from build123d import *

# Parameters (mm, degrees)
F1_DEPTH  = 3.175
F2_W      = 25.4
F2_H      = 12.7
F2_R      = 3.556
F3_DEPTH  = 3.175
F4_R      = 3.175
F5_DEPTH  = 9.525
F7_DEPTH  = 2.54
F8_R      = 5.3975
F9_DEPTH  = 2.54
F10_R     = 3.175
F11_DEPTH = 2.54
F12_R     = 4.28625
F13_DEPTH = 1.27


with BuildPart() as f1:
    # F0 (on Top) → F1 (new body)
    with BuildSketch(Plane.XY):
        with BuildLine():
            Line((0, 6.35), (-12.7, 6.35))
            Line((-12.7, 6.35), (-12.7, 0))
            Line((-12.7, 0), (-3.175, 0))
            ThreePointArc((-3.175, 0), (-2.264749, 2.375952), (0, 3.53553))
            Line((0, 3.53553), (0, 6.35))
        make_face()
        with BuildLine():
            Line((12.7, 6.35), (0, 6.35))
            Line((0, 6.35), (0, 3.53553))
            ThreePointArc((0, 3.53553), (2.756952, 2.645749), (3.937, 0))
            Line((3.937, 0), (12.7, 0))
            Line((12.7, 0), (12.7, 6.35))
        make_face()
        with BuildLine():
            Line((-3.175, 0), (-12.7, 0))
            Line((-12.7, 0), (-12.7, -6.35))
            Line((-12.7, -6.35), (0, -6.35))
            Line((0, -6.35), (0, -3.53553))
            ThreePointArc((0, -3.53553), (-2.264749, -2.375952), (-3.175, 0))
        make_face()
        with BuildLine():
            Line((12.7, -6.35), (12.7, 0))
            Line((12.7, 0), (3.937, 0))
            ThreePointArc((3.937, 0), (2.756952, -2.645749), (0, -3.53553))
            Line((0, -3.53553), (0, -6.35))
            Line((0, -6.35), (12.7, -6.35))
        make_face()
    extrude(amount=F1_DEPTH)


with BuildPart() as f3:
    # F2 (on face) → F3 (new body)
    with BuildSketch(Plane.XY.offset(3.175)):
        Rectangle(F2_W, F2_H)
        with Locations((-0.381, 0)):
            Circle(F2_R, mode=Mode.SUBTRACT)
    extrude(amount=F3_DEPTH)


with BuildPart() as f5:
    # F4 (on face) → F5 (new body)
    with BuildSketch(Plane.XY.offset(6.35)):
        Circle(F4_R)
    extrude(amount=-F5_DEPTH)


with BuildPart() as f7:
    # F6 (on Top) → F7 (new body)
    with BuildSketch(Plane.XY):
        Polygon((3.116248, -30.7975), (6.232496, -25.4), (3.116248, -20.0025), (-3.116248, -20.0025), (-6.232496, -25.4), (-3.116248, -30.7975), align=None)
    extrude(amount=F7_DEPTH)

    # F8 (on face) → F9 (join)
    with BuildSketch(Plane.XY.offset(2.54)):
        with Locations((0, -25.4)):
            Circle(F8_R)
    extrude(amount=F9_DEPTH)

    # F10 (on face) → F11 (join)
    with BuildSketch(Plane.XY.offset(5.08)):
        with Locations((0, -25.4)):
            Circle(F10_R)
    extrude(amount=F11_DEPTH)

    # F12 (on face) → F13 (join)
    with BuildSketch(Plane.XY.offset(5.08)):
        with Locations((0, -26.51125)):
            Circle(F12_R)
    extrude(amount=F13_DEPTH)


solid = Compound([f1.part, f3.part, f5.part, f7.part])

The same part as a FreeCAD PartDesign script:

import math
import FreeCAD as App
import Part
import Sketcher
from FreeCAD import Vector
Q = App.Units.Quantity


def add_polygon(sketch, points):
    """Adds a closed chain of lines whose ends are joined by coincident constraints."""
    first, n = sketch.GeometryCount, len(points)
    for a, b in zip(points, points[1:] + points[:1]):
        sketch.addGeometry(Part.LineSegment(App.Vector(*a, 0), App.Vector(*b, 0)), False)
    for i in range(n):
        sketch.addConstraint(Sketcher.Constraint("Coincident", first + i, 2, first + (i + 1) % n, 1))

doc = App.newDocument("Part")
body = doc.addObject("PartDesign::Body", "Body")

sketch1 = body.newObject("Sketcher::SketchObject", "Sketch")
sketch1.AttachmentSupport = (doc.getObject("XY_Plane"), [""])
sketch1.MapMode = "FlatFace"
add_polygon(sketch1, [(-12.7, 6.3), (-12.7, -6.3), (12.7, -6.3), (12.7, 6.3)])
sketch1.addGeometry(Part.ArcOfCircle(Part.Circle(Vector(0.4, 0, 0), Vector(0, 0, 1), 3.6), math.radians(180), math.radians(264)), False)
sketch1.addGeometry(Part.ArcOfCircle(Part.Circle(Vector(0.4, 0, 0), Vector(0, 0, 1), 3.6), math.radians(96), math.radians(180)), False)
sketch1.addGeometry(Part.ArcOfCircle(Part.Circle(Vector(0.4, 0, 0), Vector(0, 0, 1), 3.6), math.radians(0), math.radians(96)), False)
sketch1.addGeometry(Part.ArcOfCircle(Part.Circle(Vector(0.4, 0, 0), Vector(0, 0, 1), 3.6), math.radians(-96), math.radians(0)), False)
sketch1.addConstraint([
    Sketcher.Constraint("Tangent", 4, 1, 5, 2),
    Sketcher.Constraint("Tangent", 5, 1, 6, 2),
    Sketcher.Constraint("Tangent", 6, 1, 7, 2),
    Sketcher.Constraint("Tangent", 7, 1, 4, 2),
    Sketcher.Constraint("Vertical", 0),
    Sketcher.Constraint("Horizontal", 1),
    Sketcher.Constraint("Vertical", 2),
    Sketcher.Constraint("Horizontal", 3),
    Sketcher.Constraint("Equal", 4, 5),
    Sketcher.Constraint("Symmetric", 0, 2, 2, 2, -1, 1),
    Sketcher.Constraint("Symmetric", 5, 1, 7, 1, -1, 1),
    Sketcher.Constraint("PointOnObject", 4, 3, -1),
    Sketcher.Constraint("PointOnObject", 4, 1, -1),
    Sketcher.Constraint("PointOnObject", 6, 1, -1),
    Sketcher.Constraint("DistanceX", 1, 1, 1, 2, Q("1 in")),
    Sketcher.Constraint("Radius", 4, Q("0.14 in")),
    Sketcher.Constraint("DistanceY", 0, 2, 0, 1, Q("0.5 in")),
    Sketcher.Constraint("DistanceX", -1, 1, 4, 3, Q("0.015 in")),
])
pad1 = body.newObject("PartDesign::Pad", "Pad")
pad1.Profile = sketch1
pad1.Length = Q("0.125 in")
body2 = doc.addObject("PartDesign::Body", "Body001")

sketch2 = body2.newObject("Sketcher::SketchObject", "Sketch001")
sketch2.AttachmentSupport = (doc.getObject("XY_Plane001"), [""])
sketch2.MapMode = "FlatFace"
sketch2.AttachmentOffset = App.Placement(Vector(0, 0, 0.125 * 25.4), App.Rotation())
add_polygon(sketch2, [(-12.7, 6.3), (-12.7, -6.3), (12.7, -6.3), (12.7, 6.3)])
sketch2.addGeometry(Part.Circle(Vector(-0.4, 0, 0), Vector(0, 0, 1), 3.6), False)
sketch2.addConstraint([
    Sketcher.Constraint("Vertical", 0),
    Sketcher.Constraint("Horizontal", 1),
    Sketcher.Constraint("Vertical", 2),
    Sketcher.Constraint("Horizontal", 3),
    Sketcher.Constraint("Symmetric", 0, 2, 2, 2, -1, 1),
    Sketcher.Constraint("PointOnObject", 4, 3, -1),
    Sketcher.Constraint("Diameter", 4, Q("0.28 in")),
    Sketcher.Constraint("DistanceX", 1, 1, 1, 2, Q("1 in")),
    Sketcher.Constraint("DistanceY", 0, 2, 0, 1, Q("0.5 in")),
    Sketcher.Constraint("DistanceX", 4, 3, -1, 1, Q("0.015 in")),
])
pad2 = body2.newObject("PartDesign::Pad", "Pad001")
pad2.Profile = sketch2
pad2.Length = Q("0.125 in")
body3 = doc.addObject("PartDesign::Body", "Body002")

sketch3 = body3.newObject("Sketcher::SketchObject", "Sketch002")
sketch3.AttachmentSupport = (doc.getObject("XY_Plane002"), [""])
sketch3.MapMode = "FlatFace"
sketch3.AttachmentOffset = App.Placement(Vector(0, 0, 0.25 * 25.4), App.Rotation())
sketch3.addGeometry(Part.Circle(Vector(0, 0, 0), Vector(0, 0, 1), 3.2), False)
sketch3.addConstraint([
    Sketcher.Constraint("Coincident", 0, 3, -1, 1),
    Sketcher.Constraint("Diameter", 0, Q("0.25 in")),
])
pad3 = body3.newObject("PartDesign::Pad", "Pad002")
pad3.Profile = sketch3
pad3.Length = Q("0.375 in")
pad3.Reversed = True
body4 = doc.addObject("PartDesign::Body", "Body003")

sketch4 = body4.newObject("Sketcher::SketchObject", "Sketch003")
sketch4.AttachmentSupport = (doc.getObject("XY_Plane003"), [""])
sketch4.MapMode = "FlatFace"
add_polygon(sketch4, [(3, -31), (6, -25), (3, -20), (-3, -20), (-6, -25), (-3, -31)])
sketch4.addConstraint([
    Sketcher.Constraint("Horizontal", 2),
    Sketcher.Constraint("Horizontal", 5),
    Sketcher.Constraint("Symmetric", 0, 2, 3, 2, -2),
    Sketcher.Constraint("Parallel", 0, 3),
    Sketcher.Constraint("Parallel", 1, 4),
    Sketcher.Constraint("Vertical", 2, 2, 4, 2),
    Sketcher.Constraint("Vertical", 1, 2, 5, 2),
    Sketcher.Constraint("DistanceY", 0, 2, -1, 1, Q("1 in")),
    Sketcher.Constraint("Angle", 0, Q("60.000001 deg")),
    Sketcher.Constraint("DistanceY", 4, 2, 2, 2, Q("0.425 in")),
    Sketcher.Constraint("DistanceX", 2, 2, 2, 1, 6.232496),
])
pad4 = body4.newObject("PartDesign::Pad", "Pad003")
pad4.Profile = sketch4
pad4.Length = Q("0.1 in")

sketch5 = body4.newObject("Sketcher::SketchObject", "Sketch004")
sketch5.AttachmentSupport = (doc.getObject("XY_Plane003"), [""])
sketch5.MapMode = "FlatFace"
sketch5.AttachmentOffset = App.Placement(Vector(0, 0, 0.1 * 25.4), App.Rotation())
sketch5.addGeometry(Part.Circle(Vector(0, -25, 0), Vector(0, 0, 1), 5), False)
sketch5.addConstraint([
    Sketcher.Constraint("PointOnObject", 0, 3, -2),
    Sketcher.Constraint("Diameter", 0, Q("0.425 in")),
    Sketcher.Constraint("DistanceY", 0, 3, -1, 1, Q("1 in")),
])
pad5 = body4.newObject("PartDesign::Pad", "Pad004")
pad5.Profile = sketch5
pad5.Length = Q("0.1 in")

sketch6 = body4.newObject("Sketcher::SketchObject", "Sketch005")
sketch6.AttachmentSupport = (doc.getObject("XY_Plane003"), [""])
sketch6.MapMode = "FlatFace"
sketch6.AttachmentOffset = App.Placement(Vector(0, 0, 0.2 * 25.4), App.Rotation())
sketch6.addGeometry(Part.Circle(Vector(0, -25.4, 0), Vector(0, 0, 1), 3.2), False)
sketch6.addConstraint([
    Sketcher.Constraint("PointOnObject", 0, 3, -2),
    Sketcher.Constraint("Diameter", 0, Q("0.25 in")),
    Sketcher.Constraint("DistanceY", 0, 3, -1, 1, Q("1 in")),
])
pad6 = body4.newObject("PartDesign::Pad", "Pad005")
pad6.Profile = sketch6
pad6.Length = Q("0.1 in")

sketch7 = body4.newObject("Sketcher::SketchObject", "Sketch006")
sketch7.AttachmentSupport = (doc.getObject("XY_Plane003"), [""])
sketch7.MapMode = "FlatFace"
sketch7.AttachmentOffset = App.Placement(Vector(0, 0, 0.2 * 25.4), App.Rotation())
sketch7.addGeometry(Part.Circle(Vector(0, -26.5, 0), Vector(0, 0, 1), 4.3), False)
sketch7.addConstraint([
    Sketcher.Constraint("PointOnObject", 0, 3, -2),
    Sketcher.Constraint("Diameter", 0, Q("0.3375 in")),
    Sketcher.Constraint("DistanceY", 0, 3, -1, 1, 26.51125),
])
pad7 = body4.newObject("PartDesign::Pad", "Pad006")
pad7.Profile = sketch7
pad7.Length = Q("0.05 in")

doc.recompute()
